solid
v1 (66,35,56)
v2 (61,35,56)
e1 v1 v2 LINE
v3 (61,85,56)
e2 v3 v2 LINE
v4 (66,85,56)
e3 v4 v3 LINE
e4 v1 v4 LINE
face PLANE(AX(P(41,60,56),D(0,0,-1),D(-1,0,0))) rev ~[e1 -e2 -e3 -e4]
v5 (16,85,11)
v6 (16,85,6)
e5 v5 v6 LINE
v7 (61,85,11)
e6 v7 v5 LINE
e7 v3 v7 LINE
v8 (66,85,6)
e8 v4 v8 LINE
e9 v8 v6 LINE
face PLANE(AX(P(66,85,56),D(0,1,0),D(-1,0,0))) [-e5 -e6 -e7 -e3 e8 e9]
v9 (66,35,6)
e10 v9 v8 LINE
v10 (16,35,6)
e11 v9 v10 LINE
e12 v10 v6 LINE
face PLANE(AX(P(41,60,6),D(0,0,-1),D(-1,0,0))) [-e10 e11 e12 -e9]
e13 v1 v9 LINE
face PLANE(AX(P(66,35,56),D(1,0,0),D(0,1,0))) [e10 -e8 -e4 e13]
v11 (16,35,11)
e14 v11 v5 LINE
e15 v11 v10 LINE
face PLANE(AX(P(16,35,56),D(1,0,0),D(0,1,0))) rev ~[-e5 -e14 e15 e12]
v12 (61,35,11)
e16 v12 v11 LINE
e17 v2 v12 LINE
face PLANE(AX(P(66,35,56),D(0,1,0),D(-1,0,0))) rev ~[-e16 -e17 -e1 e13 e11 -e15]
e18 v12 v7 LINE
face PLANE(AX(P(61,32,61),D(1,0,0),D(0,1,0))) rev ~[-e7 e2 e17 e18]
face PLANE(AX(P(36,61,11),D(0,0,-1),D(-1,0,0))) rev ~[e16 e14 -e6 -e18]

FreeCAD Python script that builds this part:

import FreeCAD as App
import Part
import Sketcher
from FreeCAD import Vector

doc = App.newDocument("Part")
params = doc.addObject("Spreadsheet::Sheet", "Params")
for row, (alias, value) in enumerate([
    ("sketch1_width", "50 mm"),
    ("sketch1_height", "58 mm"),
    ("pad1_length", "50 mm"),
    ("sketch2_width", "50 mm"),
    ("pad2_length", "50 mm"),
], start=1):
    params.set(f"A{row}", alias)
    params.set(f"B{row}", "=" + value)
    params.setAlias(f"B{row}", alias)

body = doc.addObject("PartDesign::Body", "Body")

# Sketch on XY plane
sketch1 = body.newObject("Sketcher::SketchObject", "Sketch")
sketch1.AttachmentSupport = (doc.getObject("XY_Plane"), [""])
sketch1.MapMode = "FlatFace"
sketch1.AttachmentOffset = App.Placement(Vector(0, 0, -5), App.Rotation())
sketch1.addGeometry(Part.LineSegment(Vector(5, 55, 0), Vector(5, -3, 0)), False)
sketch1.addGeometry(Part.LineSegment(Vector(5, -3, 0), Vector(55, -3, 0)), False)
sketch1.addGeometry(Part.LineSegment(Vector(55, -3, 0), Vector(55, 55, 0)), False)
sketch1.addGeometry(Part.LineSegment(Vector(55, 55, 0), Vector(5, 55, 0)), False)
sketch1.addConstraint(Sketcher.Constraint("Coincident", 0, 2, 1, 1))
sketch1.addConstraint(Sketcher.Constraint("Coincident", 1, 2, 2, 1))
sketch1.addConstraint(Sketcher.Constraint("Coincident", 2, 2, 3, 1))
sketch1.addConstraint(Sketcher.Constraint("Coincident", 3, 2, 0, 1))
sketch1.addConstraint(Sketcher.Constraint("Vertical", 0))
sketch1.addConstraint(Sketcher.Constraint("Horizontal", 1))
sketch1.addConstraint(Sketcher.Constraint("Vertical", 2))
sketch1.addConstraint(Sketcher.Constraint("Horizontal", 3))
sketch1.addConstraint(Sketcher.Constraint("DistanceX", 1, 1, 1, 2, 50.0))
sketch1.addConstraint(Sketcher.Constraint("DistanceY", 0, 2, 0, 1, 58.0))
sketch1.addConstraint(Sketcher.Constraint("DistanceX", -1, 1, 0, 2, 5.0))
sketch1.addConstraint(Sketcher.Constraint("DistanceY", 0, 2, -1, 1, 3.0))
sketch1.setExpression("Constraints[8]", "Params.sketch1_width")
sketch1.setExpression("Constraints[9]", "Params.sketch1_height")
pad1 = body.newObject("PartDesign::Pad", "Pad")
pad1.Profile = sketch1
pad1.setExpression("Length", "Params.pad1_length")
body2 = doc.addObject("PartDesign::Body", "Body001")

# Sketch on XY plane
sketch2 = body2.newObject("Sketcher::SketchObject", "Sketch001")
sketch2.AttachmentSupport = (doc.getObject("XY_Plane001"), [""])
sketch2.MapMode = "FlatFace"
sketch2.addGeometry(Part.LineSegment(Vector(0, 50, 0), Vector(0, 0, 0)), False)
sketch2.addGeometry(Part.LineSegment(Vector(0, 0, 0), Vector(50, 0, 0)), False)
sketch2.addGeometry(Part.LineSegment(Vector(50, 0, 0), Vector(50, 50, 0)), False)
sketch2.addGeometry(Part.LineSegment(Vector(50, 50, 0), Vector(0, 50, 0)), False)
sketch2.addConstraint(Sketcher.Constraint("Coincident", 0, 2, 1, 1))
sketch2.addConstraint(Sketcher.Constraint("Coincident", 1, 2, 2, 1))
sketch2.addConstraint(Sketcher.Constraint("Coincident", 2, 2, 3, 1))
sketch2.addConstraint(Sketcher.Constraint("Coincident", 3, 2, 0, 1))
sketch2.addConstraint(Sketcher.Constraint("Vertical", 0))
sketch2.addConstraint(Sketcher.Constraint("Horizontal", 1))
sketch2.addConstraint(Sketcher.Constraint("Vertical", 2))
sketch2.addConstraint(Sketcher.Constraint("Horizontal", 3))
sketch2.addConstraint(Sketcher.Constraint("Coincident", 0, 2, -1, 1))
sketch2.addConstraint(Sketcher.Constraint("Equal", 3, 0))
sketch2.addConstraint(Sketcher.Constraint("DistanceX", 1, 1, 1, 2, 50.0))
sketch2.setExpression("Constraints[10]", "Params.sketch2_width")
pad2 = body2.newObject("PartDesign::Pad", "Pad001")
pad2.Profile = sketch2
pad2.setExpression("Length", "Params.pad2_length")
doc.recompute()

boolean = body2.newObject("PartDesign::Boolean", "Boolean")
boolean.Type = "Cut"
boolean.addObjects([body])
body3 = doc.addObject("PartDesign::Body", "Body002")
doc.recompute()

body2.Placement = App.Placement(Vector(66, 35, 56), App.Rotation(Vector(0, 1, 0), 180))
boolean2 = body3.newObject("PartDesign::Boolean", "Boolean001")
boolean2.Type = "Fuse"
boolean2.addObjects([body2])

doc.recompute()
